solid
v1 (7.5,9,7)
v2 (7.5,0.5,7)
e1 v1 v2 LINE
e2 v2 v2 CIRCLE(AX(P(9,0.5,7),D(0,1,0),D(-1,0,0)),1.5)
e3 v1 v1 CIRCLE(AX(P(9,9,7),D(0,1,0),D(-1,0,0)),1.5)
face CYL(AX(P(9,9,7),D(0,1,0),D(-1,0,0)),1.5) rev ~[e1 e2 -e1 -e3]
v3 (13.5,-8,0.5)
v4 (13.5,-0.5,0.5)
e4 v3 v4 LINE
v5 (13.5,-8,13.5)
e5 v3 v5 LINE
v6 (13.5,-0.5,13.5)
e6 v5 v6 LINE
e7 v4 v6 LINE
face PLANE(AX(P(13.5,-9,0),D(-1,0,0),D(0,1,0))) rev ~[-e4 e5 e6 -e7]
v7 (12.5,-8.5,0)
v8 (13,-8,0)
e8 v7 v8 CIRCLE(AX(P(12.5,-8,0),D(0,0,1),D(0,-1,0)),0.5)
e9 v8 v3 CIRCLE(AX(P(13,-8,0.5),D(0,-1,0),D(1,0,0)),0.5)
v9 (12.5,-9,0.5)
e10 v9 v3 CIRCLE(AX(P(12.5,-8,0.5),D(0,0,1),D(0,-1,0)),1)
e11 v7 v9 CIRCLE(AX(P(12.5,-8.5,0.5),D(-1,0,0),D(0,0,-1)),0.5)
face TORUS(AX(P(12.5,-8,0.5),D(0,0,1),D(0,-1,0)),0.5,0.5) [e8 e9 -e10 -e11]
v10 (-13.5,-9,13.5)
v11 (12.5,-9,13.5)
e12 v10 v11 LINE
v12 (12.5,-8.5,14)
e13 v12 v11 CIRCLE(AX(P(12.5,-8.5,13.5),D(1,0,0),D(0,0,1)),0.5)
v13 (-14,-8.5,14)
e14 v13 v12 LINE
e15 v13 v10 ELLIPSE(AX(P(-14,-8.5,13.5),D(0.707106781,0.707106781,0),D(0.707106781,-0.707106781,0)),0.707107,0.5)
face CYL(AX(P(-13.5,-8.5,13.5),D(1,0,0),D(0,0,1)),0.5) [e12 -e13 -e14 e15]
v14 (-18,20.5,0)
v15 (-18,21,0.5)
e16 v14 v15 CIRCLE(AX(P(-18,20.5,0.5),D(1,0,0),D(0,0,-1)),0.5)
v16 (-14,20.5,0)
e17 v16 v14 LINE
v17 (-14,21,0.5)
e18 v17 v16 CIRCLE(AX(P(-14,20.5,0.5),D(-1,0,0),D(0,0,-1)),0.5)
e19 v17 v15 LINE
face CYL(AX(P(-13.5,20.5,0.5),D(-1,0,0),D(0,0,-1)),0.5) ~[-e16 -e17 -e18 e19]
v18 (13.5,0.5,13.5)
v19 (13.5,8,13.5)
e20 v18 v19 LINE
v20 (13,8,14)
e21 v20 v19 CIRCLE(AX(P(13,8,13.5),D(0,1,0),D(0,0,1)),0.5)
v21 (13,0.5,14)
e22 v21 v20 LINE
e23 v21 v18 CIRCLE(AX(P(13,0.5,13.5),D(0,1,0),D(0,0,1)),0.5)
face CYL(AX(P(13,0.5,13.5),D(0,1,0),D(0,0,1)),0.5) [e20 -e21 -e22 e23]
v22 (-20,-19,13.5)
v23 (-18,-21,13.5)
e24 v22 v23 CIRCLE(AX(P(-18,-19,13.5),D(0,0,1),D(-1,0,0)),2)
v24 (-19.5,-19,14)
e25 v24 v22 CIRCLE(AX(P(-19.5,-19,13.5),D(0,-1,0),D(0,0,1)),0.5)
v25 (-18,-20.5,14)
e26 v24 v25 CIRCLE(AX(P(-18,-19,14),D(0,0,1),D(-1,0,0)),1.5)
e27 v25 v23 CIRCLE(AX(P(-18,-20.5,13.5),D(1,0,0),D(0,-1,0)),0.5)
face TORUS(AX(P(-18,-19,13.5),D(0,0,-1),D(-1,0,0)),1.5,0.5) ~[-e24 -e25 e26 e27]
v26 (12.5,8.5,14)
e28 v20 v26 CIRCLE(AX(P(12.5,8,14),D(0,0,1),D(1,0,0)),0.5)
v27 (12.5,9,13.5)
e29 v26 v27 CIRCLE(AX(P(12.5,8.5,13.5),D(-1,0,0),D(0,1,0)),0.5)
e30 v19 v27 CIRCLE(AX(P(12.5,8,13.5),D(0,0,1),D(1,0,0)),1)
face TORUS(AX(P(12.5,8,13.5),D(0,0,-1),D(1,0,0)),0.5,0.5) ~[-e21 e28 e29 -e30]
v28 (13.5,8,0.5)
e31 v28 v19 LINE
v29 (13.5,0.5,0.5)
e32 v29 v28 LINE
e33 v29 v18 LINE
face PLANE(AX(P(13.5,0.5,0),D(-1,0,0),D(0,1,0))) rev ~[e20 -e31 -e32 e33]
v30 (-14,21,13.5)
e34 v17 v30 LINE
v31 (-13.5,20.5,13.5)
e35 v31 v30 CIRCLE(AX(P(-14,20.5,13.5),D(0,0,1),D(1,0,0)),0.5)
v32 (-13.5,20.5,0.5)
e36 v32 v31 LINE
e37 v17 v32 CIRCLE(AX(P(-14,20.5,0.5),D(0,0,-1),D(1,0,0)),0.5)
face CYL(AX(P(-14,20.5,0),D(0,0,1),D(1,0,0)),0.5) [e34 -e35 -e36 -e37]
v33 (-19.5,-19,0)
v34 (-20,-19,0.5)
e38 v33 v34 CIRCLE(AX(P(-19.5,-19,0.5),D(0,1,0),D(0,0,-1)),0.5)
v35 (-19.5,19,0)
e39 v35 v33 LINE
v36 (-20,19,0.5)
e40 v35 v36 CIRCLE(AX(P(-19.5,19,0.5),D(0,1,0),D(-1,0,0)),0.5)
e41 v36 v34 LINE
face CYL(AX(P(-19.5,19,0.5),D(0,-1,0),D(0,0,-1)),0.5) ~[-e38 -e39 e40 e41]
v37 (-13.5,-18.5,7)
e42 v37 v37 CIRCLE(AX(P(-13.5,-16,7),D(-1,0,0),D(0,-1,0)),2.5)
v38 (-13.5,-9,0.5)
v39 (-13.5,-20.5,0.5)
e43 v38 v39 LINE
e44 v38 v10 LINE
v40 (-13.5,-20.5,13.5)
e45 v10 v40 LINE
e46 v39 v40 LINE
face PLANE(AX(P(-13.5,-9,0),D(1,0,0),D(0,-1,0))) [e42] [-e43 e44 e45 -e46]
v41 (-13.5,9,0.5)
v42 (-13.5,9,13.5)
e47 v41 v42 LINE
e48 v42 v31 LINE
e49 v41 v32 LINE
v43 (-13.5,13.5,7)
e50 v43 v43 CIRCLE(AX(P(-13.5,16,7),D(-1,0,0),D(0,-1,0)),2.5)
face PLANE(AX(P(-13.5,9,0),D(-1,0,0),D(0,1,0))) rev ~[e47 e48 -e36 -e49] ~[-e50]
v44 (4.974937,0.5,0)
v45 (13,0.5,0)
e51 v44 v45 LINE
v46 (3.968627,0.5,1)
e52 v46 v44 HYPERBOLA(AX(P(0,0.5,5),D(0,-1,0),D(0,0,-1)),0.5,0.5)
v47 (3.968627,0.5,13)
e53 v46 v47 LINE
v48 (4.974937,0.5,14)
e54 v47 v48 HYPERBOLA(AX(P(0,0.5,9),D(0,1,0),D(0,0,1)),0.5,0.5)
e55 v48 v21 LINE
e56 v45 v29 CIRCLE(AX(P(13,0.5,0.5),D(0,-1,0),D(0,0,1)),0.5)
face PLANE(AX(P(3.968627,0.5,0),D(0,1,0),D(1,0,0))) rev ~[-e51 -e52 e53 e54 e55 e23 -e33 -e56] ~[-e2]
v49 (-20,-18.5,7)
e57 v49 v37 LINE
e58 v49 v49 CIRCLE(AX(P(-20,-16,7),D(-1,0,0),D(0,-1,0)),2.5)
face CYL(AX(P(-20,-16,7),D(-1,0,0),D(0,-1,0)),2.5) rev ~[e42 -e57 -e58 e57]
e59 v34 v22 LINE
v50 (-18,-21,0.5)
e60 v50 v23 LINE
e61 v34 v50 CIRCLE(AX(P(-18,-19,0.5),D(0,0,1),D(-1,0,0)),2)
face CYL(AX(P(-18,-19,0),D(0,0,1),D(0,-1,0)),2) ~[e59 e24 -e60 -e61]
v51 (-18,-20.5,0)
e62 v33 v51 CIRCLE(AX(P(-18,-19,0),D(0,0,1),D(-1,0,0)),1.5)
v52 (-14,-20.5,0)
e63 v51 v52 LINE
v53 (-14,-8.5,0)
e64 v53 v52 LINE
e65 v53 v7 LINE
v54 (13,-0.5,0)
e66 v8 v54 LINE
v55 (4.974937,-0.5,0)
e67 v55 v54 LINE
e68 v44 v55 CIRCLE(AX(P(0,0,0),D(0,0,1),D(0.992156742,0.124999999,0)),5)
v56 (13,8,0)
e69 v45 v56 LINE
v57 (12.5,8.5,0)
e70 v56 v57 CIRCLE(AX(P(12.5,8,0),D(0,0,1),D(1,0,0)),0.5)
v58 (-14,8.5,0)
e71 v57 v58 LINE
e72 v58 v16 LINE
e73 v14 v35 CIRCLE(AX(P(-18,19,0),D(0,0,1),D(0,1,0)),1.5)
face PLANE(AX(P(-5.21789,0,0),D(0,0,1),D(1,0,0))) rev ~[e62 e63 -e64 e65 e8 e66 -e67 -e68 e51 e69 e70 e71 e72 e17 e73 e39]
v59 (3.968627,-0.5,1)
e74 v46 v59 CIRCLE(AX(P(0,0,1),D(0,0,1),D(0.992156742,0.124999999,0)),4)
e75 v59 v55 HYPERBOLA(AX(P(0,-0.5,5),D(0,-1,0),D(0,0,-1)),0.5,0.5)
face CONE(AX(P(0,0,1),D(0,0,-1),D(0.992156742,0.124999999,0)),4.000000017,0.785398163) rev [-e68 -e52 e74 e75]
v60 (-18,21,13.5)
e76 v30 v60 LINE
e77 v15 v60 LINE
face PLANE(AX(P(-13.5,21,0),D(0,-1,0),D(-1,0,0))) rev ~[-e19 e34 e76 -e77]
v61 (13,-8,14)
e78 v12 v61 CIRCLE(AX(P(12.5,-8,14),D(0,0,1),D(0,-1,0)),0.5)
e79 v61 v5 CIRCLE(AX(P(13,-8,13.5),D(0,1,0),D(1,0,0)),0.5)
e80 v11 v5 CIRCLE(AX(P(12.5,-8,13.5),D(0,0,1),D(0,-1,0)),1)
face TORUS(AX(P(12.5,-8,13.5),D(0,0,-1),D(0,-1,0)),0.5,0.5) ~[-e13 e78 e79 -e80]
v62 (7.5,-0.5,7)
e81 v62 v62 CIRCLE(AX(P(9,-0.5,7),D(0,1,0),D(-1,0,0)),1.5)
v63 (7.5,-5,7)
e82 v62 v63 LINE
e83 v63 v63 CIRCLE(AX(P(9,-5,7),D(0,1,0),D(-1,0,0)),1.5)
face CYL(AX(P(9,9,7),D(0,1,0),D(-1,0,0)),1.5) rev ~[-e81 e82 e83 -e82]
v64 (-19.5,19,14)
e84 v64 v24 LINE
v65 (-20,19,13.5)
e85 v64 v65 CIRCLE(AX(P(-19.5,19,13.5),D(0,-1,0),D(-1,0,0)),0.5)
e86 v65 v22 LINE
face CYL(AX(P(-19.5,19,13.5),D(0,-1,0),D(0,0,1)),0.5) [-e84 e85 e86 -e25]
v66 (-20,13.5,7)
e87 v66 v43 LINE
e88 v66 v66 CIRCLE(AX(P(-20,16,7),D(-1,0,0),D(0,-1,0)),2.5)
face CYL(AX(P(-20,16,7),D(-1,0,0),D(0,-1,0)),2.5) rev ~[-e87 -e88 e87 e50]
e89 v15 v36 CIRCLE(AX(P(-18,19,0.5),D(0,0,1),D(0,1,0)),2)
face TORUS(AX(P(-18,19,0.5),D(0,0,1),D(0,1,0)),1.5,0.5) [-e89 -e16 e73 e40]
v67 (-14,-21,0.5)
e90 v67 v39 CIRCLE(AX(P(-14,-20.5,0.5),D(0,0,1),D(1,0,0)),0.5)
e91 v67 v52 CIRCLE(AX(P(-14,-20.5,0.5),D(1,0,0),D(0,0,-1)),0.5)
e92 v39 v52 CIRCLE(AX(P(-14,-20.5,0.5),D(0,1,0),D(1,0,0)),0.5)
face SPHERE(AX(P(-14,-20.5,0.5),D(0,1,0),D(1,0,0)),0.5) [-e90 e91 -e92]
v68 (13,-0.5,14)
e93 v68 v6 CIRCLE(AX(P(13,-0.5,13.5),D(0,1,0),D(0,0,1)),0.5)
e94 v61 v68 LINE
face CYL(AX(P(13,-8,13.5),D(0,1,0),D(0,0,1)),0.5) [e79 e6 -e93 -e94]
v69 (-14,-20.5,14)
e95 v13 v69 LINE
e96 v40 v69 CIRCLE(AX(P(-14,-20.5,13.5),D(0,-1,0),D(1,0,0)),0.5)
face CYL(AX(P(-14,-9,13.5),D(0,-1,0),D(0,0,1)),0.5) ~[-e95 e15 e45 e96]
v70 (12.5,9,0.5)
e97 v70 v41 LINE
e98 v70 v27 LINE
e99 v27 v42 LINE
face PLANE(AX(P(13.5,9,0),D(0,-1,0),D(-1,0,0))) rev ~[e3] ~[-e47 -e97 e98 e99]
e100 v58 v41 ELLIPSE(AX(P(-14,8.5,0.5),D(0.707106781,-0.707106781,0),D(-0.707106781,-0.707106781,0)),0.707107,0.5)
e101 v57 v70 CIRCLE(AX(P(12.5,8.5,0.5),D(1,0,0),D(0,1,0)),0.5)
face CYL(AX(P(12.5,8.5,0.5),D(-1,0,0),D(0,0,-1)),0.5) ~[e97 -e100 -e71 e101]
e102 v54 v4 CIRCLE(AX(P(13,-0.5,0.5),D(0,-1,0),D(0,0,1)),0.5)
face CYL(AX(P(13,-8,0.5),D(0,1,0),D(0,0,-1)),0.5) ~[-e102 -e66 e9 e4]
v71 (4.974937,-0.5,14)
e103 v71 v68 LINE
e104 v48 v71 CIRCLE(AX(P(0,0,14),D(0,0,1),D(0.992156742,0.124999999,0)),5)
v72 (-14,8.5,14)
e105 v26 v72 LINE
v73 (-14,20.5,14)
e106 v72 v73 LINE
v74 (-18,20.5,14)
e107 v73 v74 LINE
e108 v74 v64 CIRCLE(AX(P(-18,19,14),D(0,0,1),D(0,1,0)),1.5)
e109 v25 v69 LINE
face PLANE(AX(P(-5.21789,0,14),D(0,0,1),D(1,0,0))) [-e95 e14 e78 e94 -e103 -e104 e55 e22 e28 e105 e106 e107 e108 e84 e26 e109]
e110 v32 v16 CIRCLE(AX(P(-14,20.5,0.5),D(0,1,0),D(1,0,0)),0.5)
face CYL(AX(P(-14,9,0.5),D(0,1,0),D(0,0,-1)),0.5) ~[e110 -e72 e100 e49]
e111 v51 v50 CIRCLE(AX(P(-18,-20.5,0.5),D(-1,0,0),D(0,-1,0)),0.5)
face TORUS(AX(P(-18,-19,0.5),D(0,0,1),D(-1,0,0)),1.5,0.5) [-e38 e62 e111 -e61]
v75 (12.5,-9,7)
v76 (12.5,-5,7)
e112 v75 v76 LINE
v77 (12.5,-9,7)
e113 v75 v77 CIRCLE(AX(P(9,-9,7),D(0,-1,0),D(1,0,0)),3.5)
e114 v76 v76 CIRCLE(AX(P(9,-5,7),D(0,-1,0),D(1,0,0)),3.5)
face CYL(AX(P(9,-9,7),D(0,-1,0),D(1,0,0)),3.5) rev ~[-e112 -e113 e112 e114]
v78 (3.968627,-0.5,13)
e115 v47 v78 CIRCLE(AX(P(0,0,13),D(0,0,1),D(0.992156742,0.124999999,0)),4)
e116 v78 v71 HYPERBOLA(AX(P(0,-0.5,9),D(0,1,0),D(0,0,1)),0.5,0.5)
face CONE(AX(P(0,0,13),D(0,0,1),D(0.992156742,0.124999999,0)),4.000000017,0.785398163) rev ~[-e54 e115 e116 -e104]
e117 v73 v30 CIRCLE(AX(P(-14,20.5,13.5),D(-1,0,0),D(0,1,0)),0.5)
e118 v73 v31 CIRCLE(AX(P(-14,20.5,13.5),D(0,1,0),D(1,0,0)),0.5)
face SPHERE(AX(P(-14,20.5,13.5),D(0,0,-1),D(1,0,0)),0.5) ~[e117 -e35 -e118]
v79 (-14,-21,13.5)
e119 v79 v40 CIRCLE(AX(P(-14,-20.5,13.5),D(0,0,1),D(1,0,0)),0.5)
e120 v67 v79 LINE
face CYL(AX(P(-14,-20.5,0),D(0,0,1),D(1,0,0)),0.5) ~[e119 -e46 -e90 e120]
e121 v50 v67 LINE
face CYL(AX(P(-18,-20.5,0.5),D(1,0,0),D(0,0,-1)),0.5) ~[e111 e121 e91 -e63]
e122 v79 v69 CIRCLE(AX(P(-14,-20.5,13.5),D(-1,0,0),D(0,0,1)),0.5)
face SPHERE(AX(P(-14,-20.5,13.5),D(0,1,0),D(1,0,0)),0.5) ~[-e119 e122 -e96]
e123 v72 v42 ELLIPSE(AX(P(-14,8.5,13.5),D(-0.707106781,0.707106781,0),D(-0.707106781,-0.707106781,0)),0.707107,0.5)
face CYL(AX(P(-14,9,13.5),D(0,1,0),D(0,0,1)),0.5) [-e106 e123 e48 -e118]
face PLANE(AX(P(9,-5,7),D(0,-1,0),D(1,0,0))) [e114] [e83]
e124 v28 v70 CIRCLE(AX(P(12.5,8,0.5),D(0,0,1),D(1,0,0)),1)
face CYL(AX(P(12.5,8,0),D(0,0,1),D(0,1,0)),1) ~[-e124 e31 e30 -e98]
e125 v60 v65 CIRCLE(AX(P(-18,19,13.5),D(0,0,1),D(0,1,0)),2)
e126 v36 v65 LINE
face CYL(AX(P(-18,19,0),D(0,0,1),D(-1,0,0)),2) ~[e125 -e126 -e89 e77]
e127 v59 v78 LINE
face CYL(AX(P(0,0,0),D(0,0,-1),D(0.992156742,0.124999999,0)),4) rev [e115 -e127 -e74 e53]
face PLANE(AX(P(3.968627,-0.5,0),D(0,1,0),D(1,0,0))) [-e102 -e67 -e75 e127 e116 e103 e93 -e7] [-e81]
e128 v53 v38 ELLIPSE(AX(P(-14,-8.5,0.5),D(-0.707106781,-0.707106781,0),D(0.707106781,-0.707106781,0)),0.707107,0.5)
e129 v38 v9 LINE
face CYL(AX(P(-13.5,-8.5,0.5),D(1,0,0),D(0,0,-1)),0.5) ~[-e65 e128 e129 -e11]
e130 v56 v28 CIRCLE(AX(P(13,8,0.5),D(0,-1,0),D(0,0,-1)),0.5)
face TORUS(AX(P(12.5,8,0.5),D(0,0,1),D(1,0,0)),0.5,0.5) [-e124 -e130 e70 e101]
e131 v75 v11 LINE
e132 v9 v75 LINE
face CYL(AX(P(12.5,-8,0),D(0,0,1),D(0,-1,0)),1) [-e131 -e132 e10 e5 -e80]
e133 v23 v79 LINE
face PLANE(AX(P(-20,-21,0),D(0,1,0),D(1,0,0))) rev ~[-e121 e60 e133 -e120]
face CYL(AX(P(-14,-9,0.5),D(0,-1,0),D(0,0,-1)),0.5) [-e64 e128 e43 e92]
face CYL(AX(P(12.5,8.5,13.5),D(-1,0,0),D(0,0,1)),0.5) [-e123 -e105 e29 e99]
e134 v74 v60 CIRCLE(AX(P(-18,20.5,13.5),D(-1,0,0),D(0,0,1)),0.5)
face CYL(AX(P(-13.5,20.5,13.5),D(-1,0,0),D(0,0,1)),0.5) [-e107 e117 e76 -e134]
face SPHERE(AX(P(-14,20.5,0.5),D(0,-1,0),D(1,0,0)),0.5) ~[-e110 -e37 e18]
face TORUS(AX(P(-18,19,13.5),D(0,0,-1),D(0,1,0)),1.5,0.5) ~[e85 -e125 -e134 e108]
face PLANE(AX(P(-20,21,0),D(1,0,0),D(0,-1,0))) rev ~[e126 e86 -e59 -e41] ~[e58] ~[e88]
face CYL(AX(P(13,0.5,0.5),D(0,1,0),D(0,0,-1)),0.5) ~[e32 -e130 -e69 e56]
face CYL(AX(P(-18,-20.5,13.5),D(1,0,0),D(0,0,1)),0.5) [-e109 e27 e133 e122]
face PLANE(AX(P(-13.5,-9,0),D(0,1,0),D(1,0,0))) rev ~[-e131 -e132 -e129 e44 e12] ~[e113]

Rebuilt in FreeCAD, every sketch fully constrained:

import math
import FreeCAD as App
import Part
import Sketcher
Q = App.Units.Quantity


def edges_at(feature, points):
    """Names of the edges that pass closest to the given points."""
    edges = feature.Shape.Edges
    near = lambda p: min(range(len(edges)), key=lambda i: edges[i].distToShape(Part.Vertex(*p))[0])
    return sorted({f"Edge{near(p) + 1}" for p in points})

doc = App.newDocument("Part")
body = doc.addObject("PartDesign::Body", "Body")

# Sketch on XY plane
sketch1 = body.newObject("Sketcher::SketchObject", "Sketch")
sketch1.AttachmentSupport = (doc.getObject("XY_Plane"), [""])
sketch1.MapMode = "FlatFace"
sketch1.addGeometry([
    Part.LineSegment(App.Vector(-20, -21, 0), App.Vector(-13.5, -21, 0)),  # 0
    Part.LineSegment(App.Vector(-13.5, -21, 0), App.Vector(-13.5, -9, 0)),  # 1
    Part.LineSegment(App.Vector(-13.5, -9, 0), App.Vector(13.5, -9, 0)),  # 2
    Part.LineSegment(App.Vector(13.5, -9, 0), App.Vector(13.5, -0.5, 0)),  # 3
    Part.LineSegment(App.Vector(13.5, -0.5, 0), App.Vector(3.968627, -0.5, 0)),  # 4
    Part.ArcOfCircle(Part.Circle(App.Vector(0, 0, 0), App.Vector(0, 0, 1), 4), math.radians(7.180756), math.radians(352.819244)),  # 5
    Part.LineSegment(App.Vector(3.968627, 0.5, 0), App.Vector(13.5, 0.5, 0)),  # 6
    Part.LineSegment(App.Vector(13.5, 0.5, 0), App.Vector(13.5, 9, 0)),  # 7
    Part.LineSegment(App.Vector(13.5, 9, 0), App.Vector(-13.5, 9, 0)),  # 8
    Part.LineSegment(App.Vector(-13.5, 9, 0), App.Vector(-13.5, 21, 0)),  # 9
    Part.LineSegment(App.Vector(-13.5, 21, 0), App.Vector(-20, 21, 0)),  # 10
    Part.LineSegment(App.Vector(-20, 21, 0), App.Vector(-20, -21, 0)),  # 11
], False)
sketch1.addConstraint([
    Sketcher.Constraint("Coincident", 0, 2, 1, 1),
    Sketcher.Constraint("Coincident", 1, 2, 2, 1),
    Sketcher.Constraint("Coincident", 2, 2, 3, 1),
    Sketcher.Constraint("Coincident", 3, 2, 4, 1),
    Sketcher.Constraint("Coincident", 4, 2, 5, 2),
    Sketcher.Constraint("Coincident", 5, 1, 6, 1),
    Sketcher.Constraint("Coincident", 6, 2, 7, 1),
    Sketcher.Constraint("Coincident", 7, 2, 8, 1),
    Sketcher.Constraint("Coincident", 8, 2, 9, 1),
    Sketcher.Constraint("Coincident", 9, 2, 10, 1),
    Sketcher.Constraint("Coincident", 10, 2, 11, 1),
    Sketcher.Constraint("Coincident", 11, 2, 0, 1),
    Sketcher.Constraint("Horizontal", 0),
    Sketcher.Constraint("Vertical", 1),
    Sketcher.Constraint("Horizontal", 2),
    Sketcher.Constraint("Vertical", 3),
    Sketcher.Constraint("Horizontal", 4),
    Sketcher.Constraint("Horizontal", 6),
    Sketcher.Constraint("Vertical", 7),
    Sketcher.Constraint("Horizontal", 8),
    Sketcher.Constraint("Vertical", 9),
    Sketcher.Constraint("Horizontal", 10),
    Sketcher.Constraint("Vertical", 11),
    Sketcher.Constraint("Coincident", 5, 3, -1, 1),
    Sketcher.Constraint("Symmetric", 1, 2, 7, 2, -1, 1),
    Sketcher.Constraint("Symmetric", 3, 2, 6, 2, -1),
    Sketcher.Constraint("Symmetric", 0, 2, 9, 2, -1),
    Sketcher.Constraint("Radius", 5, Q("4 mm")),
    Sketcher.Constraint("DistanceX", 2, 1, 2, 2, Q("27 mm")),
    Sketcher.Constraint("DistanceY", 1, 1, 1, 2, Q("12 mm")),
    Sketcher.Constraint("DistanceY", 11, 2, 11, 1, Q("42 mm")),
    Sketcher.Constraint("DistanceX", 0, 1, 0, 2, Q("6.5 mm")),
    Sketcher.Constraint("DistanceY", 3, 1, 3, 2, Q("8.5 mm")),
])
pad1 = body.newObject("PartDesign::Pad", "Pad")
pad1.Profile = sketch1
pad1.Length = 14

# Sketch on YZ plane
sketch2 = body.newObject("Sketcher::SketchObject", "Sketch001")
sketch2.AttachmentSupport = (doc.getObject("YZ_Plane"), [""])
sketch2.MapMode = "FlatFace"
sketch2.AttachmentOffset = App.Placement(App.Vector(0, 0, -20), App.Rotation())
sketch2.addGeometry([
    Part.Circle(App.Vector(16, 7, 0), App.Vector(0, 0, 1), 2.5),
    Part.Circle(App.Vector(-16, 7, 0), App.Vector(0, 0, 1), 2.5),
], False)
sketch2.addConstraint([
    Sketcher.Constraint("Equal", 0, 1),
    Sketcher.Constraint("Symmetric", 0, 3, 1, 3, -2),
    Sketcher.Constraint("Diameter", 0, Q("5 mm")),
    Sketcher.Constraint("DistanceX", -1, 1, 0, 3, Q("16 mm")),
    Sketcher.Constraint("DistanceY", -1, 1, 0, 3, Q("7 mm")),
])
pocket1 = body.newObject("PartDesign::Pocket", "Pocket")
pocket1.Profile = sketch2
pocket1.Type = "ThroughAll"
pocket1.Reversed = True
doc.recompute()

fillet = body.newObject("PartDesign::Fillet", "Fillet")
fillet.Base = (pocket1, edges_at(pocket1, [(-20, 21, 7), (-20, -21, 7)]))
fillet.Radius = 2
doc.recompute()

fillet2 = body.newObject("PartDesign::Fillet", "Fillet001")
fillet2.Base = (fillet, edges_at(fillet, [(13.5, 9, 7), (13.5, -9, 7)]))
fillet2.Radius = 1
doc.recompute()

chamfer = body.newObject("PartDesign::Chamfer", "Chamfer")
chamfer.Base = (fillet2, edges_at(fillet2, [(-4, 0, 14)]))
chamfer.Size = 1
doc.recompute()

chamfer2 = body.newObject("PartDesign::Chamfer", "Chamfer001")
chamfer2.Base = (chamfer, edges_at(chamfer, [(-4, 0, 0)]))
chamfer2.Size = 1

# Sketch on XZ plane
sketch3 = body.newObject("Sketcher::SketchObject", "Sketch002")
sketch3.AttachmentSupport = (doc.getObject("XZ_Plane"), [""])
sketch3.MapMode = "FlatFace"
sketch3.AttachmentOffset = App.Placement(App.Vector(0, 0, -9), App.Rotation())
sketch3.addGeometry(Part.Circle(App.Vector(9, 7, 0), App.Vector(0, 0, 1), 1.5), False)
sketch3.addConstraint([
    Sketcher.Constraint("Diameter", 0, Q("3 mm")),
    Sketcher.Constraint("DistanceX", -1, 1, 0, 3, Q("9 mm")),
    Sketcher.Constraint("DistanceY", -1, 1, 0, 3, Q("7 mm")),
])
pocket2 = body.newObject("PartDesign::Pocket", "Pocket001")
pocket2.Profile = sketch3
pocket2.Type = "ThroughAll"
pocket2.Reversed = True

# Sketch on XZ plane
sketch4 = body.newObject("Sketcher::SketchObject", "Sketch003")
sketch4.AttachmentSupport = (doc.getObject("XZ_Plane"), [""])
sketch4.MapMode = "FlatFace"
sketch4.AttachmentOffset = App.Placement(App.Vector(0, 0, 9), App.Rotation())
sketch4.addGeometry(Part.Circle(App.Vector(9, 7, 0), App.Vector(0, 0, 1), 3.5), False)
sketch4.addConstraint([
    Sketcher.Constraint("Diameter", 0, Q("7 mm")),
    Sketcher.Constraint("DistanceX", -1, 1, 0, 3, Q("9 mm")),
    Sketcher.Constraint("DistanceY", -1, 1, 0, 3, Q("7 mm")),
])
pocket3 = body.newObject("PartDesign::Pocket", "Pocket002")
pocket3.Profile = sketch4
pocket3.Length = 4
doc.recompute()

fillet3 = body.newObject("PartDesign::Fillet", "Fillet002")
fillet3.Base = (pocket3, edges_at(pocket3, [
    (-0.5, -9, 14),
    (-0.5, -9, 0),
    (-0.5, 9, 14),
    (-0.5, 9, 0),
    (-13.5, -15, 0),
    (-13.5, -15, 14),
    (-13.5, 15, 0),
    (-13.5, -21, 7),
    (-13.5, 21, 7),
    (-13.5, 15, 14),
    (-15.75, 21, 14),
    (-15.75, 21, 0),
    (-15.75, -21, 0),
    (-15.75, -21, 14),
    (13.5, -4.25, 0),
    (13.5, 4.25, 0),
    (13.5, -4.25, 14),
    (13.5, 4.25, 14),
    (13.207, -8.707, 14),
    (13.207, 8.707, 14),
    (13.207, 8.707, 0),
    (13.207, -8.707, 0),
]))
fillet3.Radius = 0.5

doc.recompute()
